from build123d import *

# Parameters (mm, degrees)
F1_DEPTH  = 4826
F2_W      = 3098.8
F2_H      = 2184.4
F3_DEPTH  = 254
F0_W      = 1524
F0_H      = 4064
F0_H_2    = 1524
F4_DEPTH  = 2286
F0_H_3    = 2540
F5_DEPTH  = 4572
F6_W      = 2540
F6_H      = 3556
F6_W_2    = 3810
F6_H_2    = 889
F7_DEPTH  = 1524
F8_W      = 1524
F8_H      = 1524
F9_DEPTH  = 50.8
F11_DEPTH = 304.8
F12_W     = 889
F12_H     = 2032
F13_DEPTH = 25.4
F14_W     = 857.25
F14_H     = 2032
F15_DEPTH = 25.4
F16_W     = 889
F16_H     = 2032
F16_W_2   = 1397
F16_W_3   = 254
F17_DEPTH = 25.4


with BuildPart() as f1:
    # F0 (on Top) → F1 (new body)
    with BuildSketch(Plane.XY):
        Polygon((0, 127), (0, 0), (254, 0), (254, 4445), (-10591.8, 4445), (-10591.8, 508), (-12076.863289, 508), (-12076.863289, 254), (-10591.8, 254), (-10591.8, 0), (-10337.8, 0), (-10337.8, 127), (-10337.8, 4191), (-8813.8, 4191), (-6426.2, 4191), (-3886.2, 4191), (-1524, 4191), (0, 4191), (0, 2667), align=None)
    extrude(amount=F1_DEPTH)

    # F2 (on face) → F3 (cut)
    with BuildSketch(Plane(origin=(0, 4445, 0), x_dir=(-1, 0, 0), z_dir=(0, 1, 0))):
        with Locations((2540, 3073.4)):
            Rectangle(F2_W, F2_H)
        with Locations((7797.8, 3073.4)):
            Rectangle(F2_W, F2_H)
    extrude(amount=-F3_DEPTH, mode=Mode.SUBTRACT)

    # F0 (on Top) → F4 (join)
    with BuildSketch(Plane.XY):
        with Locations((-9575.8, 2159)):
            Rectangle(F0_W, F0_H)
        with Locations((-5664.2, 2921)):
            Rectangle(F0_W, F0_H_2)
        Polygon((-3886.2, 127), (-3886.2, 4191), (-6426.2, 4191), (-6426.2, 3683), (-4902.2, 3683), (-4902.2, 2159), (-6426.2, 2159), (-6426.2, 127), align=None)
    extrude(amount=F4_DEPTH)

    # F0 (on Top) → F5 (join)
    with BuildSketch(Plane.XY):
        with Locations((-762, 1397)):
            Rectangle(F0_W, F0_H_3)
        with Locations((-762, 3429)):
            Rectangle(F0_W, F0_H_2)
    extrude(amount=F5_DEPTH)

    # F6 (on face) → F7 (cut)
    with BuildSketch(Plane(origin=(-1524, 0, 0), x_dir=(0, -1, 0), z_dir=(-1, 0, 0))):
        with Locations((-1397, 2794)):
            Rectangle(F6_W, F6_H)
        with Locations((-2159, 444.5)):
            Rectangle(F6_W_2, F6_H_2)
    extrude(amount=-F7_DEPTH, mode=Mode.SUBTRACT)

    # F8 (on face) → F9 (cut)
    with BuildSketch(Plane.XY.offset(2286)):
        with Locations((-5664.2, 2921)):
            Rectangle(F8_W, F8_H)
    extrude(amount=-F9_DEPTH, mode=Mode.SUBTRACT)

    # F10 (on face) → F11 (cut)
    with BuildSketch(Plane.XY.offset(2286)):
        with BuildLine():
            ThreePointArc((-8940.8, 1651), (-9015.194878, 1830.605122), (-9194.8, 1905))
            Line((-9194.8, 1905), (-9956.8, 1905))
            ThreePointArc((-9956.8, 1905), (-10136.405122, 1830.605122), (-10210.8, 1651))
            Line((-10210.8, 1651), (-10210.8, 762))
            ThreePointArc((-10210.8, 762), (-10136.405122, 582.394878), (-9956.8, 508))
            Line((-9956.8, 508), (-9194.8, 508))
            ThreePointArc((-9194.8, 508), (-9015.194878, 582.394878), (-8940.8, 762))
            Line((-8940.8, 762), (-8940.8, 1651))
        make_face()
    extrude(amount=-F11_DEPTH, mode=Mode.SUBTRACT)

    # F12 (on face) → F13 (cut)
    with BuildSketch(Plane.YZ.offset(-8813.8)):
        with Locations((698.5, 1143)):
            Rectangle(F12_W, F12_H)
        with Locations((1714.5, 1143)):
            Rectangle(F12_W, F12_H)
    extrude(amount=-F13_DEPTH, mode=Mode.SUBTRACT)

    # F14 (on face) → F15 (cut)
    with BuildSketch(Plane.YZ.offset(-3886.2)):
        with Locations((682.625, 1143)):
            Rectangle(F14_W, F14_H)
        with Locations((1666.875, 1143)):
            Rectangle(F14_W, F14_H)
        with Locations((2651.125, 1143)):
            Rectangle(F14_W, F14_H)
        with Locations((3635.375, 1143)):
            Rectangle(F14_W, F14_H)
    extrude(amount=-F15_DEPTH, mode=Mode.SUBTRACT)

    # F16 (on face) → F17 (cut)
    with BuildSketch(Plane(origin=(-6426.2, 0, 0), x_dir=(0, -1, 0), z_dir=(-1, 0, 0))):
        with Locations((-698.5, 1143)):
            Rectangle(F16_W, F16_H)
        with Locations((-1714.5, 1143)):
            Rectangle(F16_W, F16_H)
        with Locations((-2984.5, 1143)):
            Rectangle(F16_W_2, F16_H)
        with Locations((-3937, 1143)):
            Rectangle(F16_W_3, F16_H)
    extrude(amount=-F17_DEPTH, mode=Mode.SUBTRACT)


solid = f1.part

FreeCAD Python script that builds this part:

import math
import FreeCAD as App
import Part
import Sketcher

V = App.Vector
Q = App.Units.Quantity


def add_polygon(sketch, points):
    """Adds a closed chain of lines whose ends are joined by coincident constraints."""
    first, n = sketch.GeometryCount, len(points)
    for a, b in zip(points, points[1:] + points[:1]):
        sketch.addGeometry(Part.LineSegment(App.Vector(*a, 0), App.Vector(*b, 0)), False)
    for i in range(n):
        sketch.addConstraint(Sketcher.Constraint("Coincident", first + i, 2, first + (i + 1) % n, 1))

doc = App.newDocument("Part")
body = doc.addObject("PartDesign::Body", "Body")

sketch1 = body.newObject("Sketcher::SketchObject", "Sketch")
sketch1.AttachmentSupport = (doc.getObject("XY_Plane"), [""])
sketch1.MapMode = "FlatFace"
add_polygon(sketch1, [(0, 0), (254, 0), (254, 4445), (-10592, 4445), (-10592, 508), (-12077, 508), (-12077, 254), (-10592, 254), (-10592, 0), (-10338, 0), (-10338, 4191), (0, 4191)])
sketch1.addConstraint([
    Sketcher.Constraint("Horizontal", 0),
    Sketcher.Constraint("Vertical", 1),
    Sketcher.Constraint("Horizontal", 2),
    Sketcher.Constraint("Vertical", 3),
    Sketcher.Constraint("Horizontal", 4),
    Sketcher.Constraint("Vertical", 5),
    Sketcher.Constraint("Horizontal", 6),
    Sketcher.Constraint("Vertical", 7),
    Sketcher.Constraint("Horizontal", 8),
    Sketcher.Constraint("Vertical", 9),
    Sketcher.Constraint("Horizontal", 10),
    Sketcher.Constraint("Vertical", 11),
    Sketcher.Constraint("Coincident", 11, 2, -1, 1),
    Sketcher.Constraint("PointOnObject", 7, 2, -1),
    Sketcher.Constraint("Vertical", 3, 2, 6, 2),
    Sketcher.Constraint("Equal", 0, 8),
    Sketcher.Constraint("Equal", 8, 5),
    Sketcher.Constraint("Equal", 5, 7),
    Sketcher.Constraint("DistanceX", 0, 1, 0, 2, Q("10 in")),
    Sketcher.Constraint("DistanceX", 2, 2, 2, 1, Q("427 in")),
    Sketcher.Constraint("DistanceY", 1, 1, 1, 2, Q("175 in")),
    Sketcher.Constraint("DistanceY", 9, 1, 9, 2, Q("165 in")),
    Sketcher.Constraint("DistanceX", 4, 2, 4, 1, 1485.063289),
])
pad1 = body.newObject("PartDesign::Pad", "Pad")
pad1.Profile = sketch1
pad1.Length = Q("190 in")

sketch2 = body.newObject("Sketcher::SketchObject", "Sketch001")
sketch2.AttachmentSupport = (doc.getObject("XZ_Plane"), [""])
sketch2.MapMode = "FlatFace"
sketch2.AttachmentOffset = App.Placement(V(0, 0, -175 * 25.4), App.Rotation())
add_polygon(sketch2, [(-991, 4166), (-991, 1981), (-4089, 1981), (-4089, 4166)])
add_polygon(sketch2, [(-6248, 4166), (-6248, 1981), (-9347, 1981), (-9347, 4166)])
sketch2.addConstraint([
    Sketcher.Constraint("Vertical", 0),
    Sketcher.Constraint("Horizontal", 1),
    Sketcher.Constraint("Vertical", 2),
    Sketcher.Constraint("Horizontal", 3),
    Sketcher.Constraint("Vertical", 4),
    Sketcher.Constraint("Horizontal", 5),
    Sketcher.Constraint("Vertical", 6),
    Sketcher.Constraint("Horizontal", 7),
    Sketcher.Constraint("Horizontal", 1, 2, 4, 2),
    Sketcher.Constraint("Horizontal", 3, 2, 6, 2),
    Sketcher.Constraint("Equal", 3, 5),
    Sketcher.Constraint("DistanceX", 1, 2, 1, 1, Q("122 in")),
    Sketcher.Constraint("DistanceY", 0, 2, 0, 1, Q("86 in")),
    Sketcher.Constraint("DistanceX", 0, 2, -1, 1, Q("39 in")),
    Sketcher.Constraint("DistanceY", -1, 1, 0, 2, Q("78 in")),
    Sketcher.Constraint("DistanceX", 4, 2, -1, 1, Q("246 in")),
])
pocket1 = body.newObject("PartDesign::Pocket", "Pocket")
pocket1.Profile = sketch2
pocket1.Length = Q("10 in")
pocket1.Reversed = True

sketch3 = body.newObject("Sketcher::SketchObject", "Sketch002")
sketch3.AttachmentSupport = (doc.getObject("XY_Plane"), [""])
sketch3.MapMode = "FlatFace"
add_polygon(sketch3, [(-10338, 4191), (-10338, 127), (-8814, 127), (-8814, 4191)])
add_polygon(sketch3, [(-6426, 127), (-3886, 127), (-3886, 4191), (-6426, 4191)])
sketch3.addConstraint([
    Sketcher.Constraint("Vertical", 0),
    Sketcher.Constraint("Horizontal", 1),
    Sketcher.Constraint("Vertical", 2),
    Sketcher.Constraint("Horizontal", 3),
    Sketcher.Constraint("Horizontal", 4),
    Sketcher.Constraint("Vertical", 5),
    Sketcher.Constraint("Horizontal", 6),
    Sketcher.Constraint("Vertical", 7),
    Sketcher.Constraint("Horizontal", 1, 2, 4, 2),
    Sketcher.Constraint("Horizontal", 3, 2, 5, 2),
    Sketcher.Constraint("DistanceX", 1, 1, 1, 2, Q("60 in")),
    Sketcher.Constraint("DistanceX", 4, 1, 4, 2, Q("100 in")),
    Sketcher.Constraint("DistanceY", 0, 2, 0, 1, Q("160 in")),
    Sketcher.Constraint("DistanceX", 0, 2, -1, 1, Q("407 in")),
    Sketcher.Constraint("DistanceY", -1, 1, 0, 2, Q("5 in")),
    Sketcher.Constraint("DistanceX", 4, 2, -1, 1, Q("153 in")),
])
pad2 = body.newObject("PartDesign::Pad", "Pad001")
pad2.Profile = sketch3
pad2.Length = Q("90 in")

sketch4 = body.newObject("Sketcher::SketchObject", "Sketch003")
sketch4.AttachmentSupport = (doc.getObject("XY_Plane"), [""])
sketch4.MapMode = "FlatFace"
add_polygon(sketch4, [(-1524, 127), (0, 127), (0, 4191), (-1524, 4191)])
sketch4.addConstraint([
    Sketcher.Constraint("Horizontal", 0),
    Sketcher.Constraint("Vertical", 1),
    Sketcher.Constraint("Horizontal", 2),
    Sketcher.Constraint("Vertical", 3),
    Sketcher.Constraint("PointOnObject", 0, 2, -2),
    Sketcher.Constraint("DistanceX", 0, 1, 0, 2, Q("60 in")),
    Sketcher.Constraint("DistanceY", 1, 1, 1, 2, Q("160 in")),
    Sketcher.Constraint("DistanceY", -1, 1, 0, 2, Q("5 in")),
])
pad3 = body.newObject("PartDesign::Pad", "Pad002")
pad3.Profile = sketch4
pad3.Length = Q("180 in")

sketch5 = body.newObject("Sketcher::SketchObject", "Sketch004")
sketch5.AttachmentSupport = (doc.getObject("YZ_Plane"), [""])
sketch5.MapMode = "FlatFace"
sketch5.AttachmentOffset = App.Placement(V(0, 0, -60 * 25.4), App.Rotation())
add_polygon(sketch5, [(2667, 4572), (2667, 1016), (127, 1016), (127, 4572)])
add_polygon(sketch5, [(4064, 889), (4064, 0), (254, 0), (254, 889)])
sketch5.addConstraint([
    Sketcher.Constraint("Vertical", 0),
    Sketcher.Constraint("Horizontal", 1),
    Sketcher.Constraint("Vertical", 2),
    Sketcher.Constraint("Horizontal", 3),
    Sketcher.Constraint("Vertical", 4),
    Sketcher.Constraint("Horizontal", 5),
    Sketcher.Constraint("Vertical", 6),
    Sketcher.Constraint("Horizontal", 7),
    Sketcher.Constraint("PointOnObject", 4, 2, -1),
    Sketcher.Constraint("DistanceX", 1, 2, 1, 1, Q("100 in")),
    Sketcher.Constraint("DistanceX", 5, 2, 5, 1, Q("150 in")),
    Sketcher.Constraint("DistanceY", 0, 2, 0, 1, Q("140 in")),
    Sketcher.Constraint("DistanceY", 4, 2, 4, 1, Q("35 in")),
    Sketcher.Constraint("DistanceX", -1, 1, 0, 2, Q("105 in")),
    Sketcher.Constraint("DistanceY", -1, 1, 0, 2, Q("40 in")),
    Sketcher.Constraint("DistanceX", -1, 1, 4, 2, Q("160 in")),
])
pocket2 = body.newObject("PartDesign::Pocket", "Pocket001")
pocket2.Profile = sketch5
pocket2.Length = Q("60 in")
pocket2.Reversed = True

sketch6 = body.newObject("Sketcher::SketchObject", "Sketch005")
sketch6.AttachmentSupport = (doc.getObject("XY_Plane"), [""])
sketch6.MapMode = "FlatFace"
sketch6.AttachmentOffset = App.Placement(V(0, 0, 90 * 25.4), App.Rotation())
add_polygon(sketch6, [(-6426, 3683), (-6426, 2159), (-4902, 2159), (-4902, 3683)])
sketch6.addConstraint([
    Sketcher.Constraint("Vertical", 0),
    Sketcher.Constraint("Horizontal", 1),
    Sketcher.Constraint("Vertical", 2),
    Sketcher.Constraint("Horizontal", 3),
    Sketcher.Constraint("Equal", 3, 0),
    Sketcher.Constraint("DistanceX", 1, 1, 1, 2, Q("60 in")),
    Sketcher.Constraint("DistanceX", 0, 2, -1, 1, Q("253 in")),
    Sketcher.Constraint("DistanceY", -1, 1, 0, 2, Q("85 in")),
])
pocket3 = body.newObject("PartDesign::Pocket", "Pocket002")
pocket3.Profile = sketch6
pocket3.Length = Q("2 in")

sketch7 = body.newObject("Sketcher::SketchObject", "Sketch006")
sketch7.AttachmentSupport = (doc.getObject("XY_Plane"), [""])
sketch7.MapMode = "FlatFace"
sketch7.AttachmentOffset = App.Placement(V(0, 0, 90 * 25.4), App.Rotation())
sketch7.addGeometry([
    Part.ArcOfCircle(Part.Circle(V(-9195, 1651, 0), V(0, 0, 1), 254), math.radians(0), math.radians(90)),
    Part.LineSegment(V(-9195, 1905, 0), V(-9957, 1905, 0)),
    Part.ArcOfCircle(Part.Circle(V(-9957, 1651, 0), V(0, 0, 1), 254), math.radians(90), math.radians(180)),
    Part.LineSegment(V(-10211, 1651, 0), V(-10211, 762, 0)),
    Part.ArcOfCircle(Part.Circle(V(-9957, 762, 0), V(0, 0, 1), 254), math.radians(-180), math.radians(-90)),
    Part.LineSegment(V(-9957, 508, 0), V(-9195, 508, 0)),
    Part.ArcOfCircle(Part.Circle(V(-9195, 762, 0), V(0, 0, 1), 254), math.radians(-90), math.radians(0)),
    Part.LineSegment(V(-8941, 762, 0), V(-8941, 1651, 0)),
], False)
sketch7.addConstraint([
    Sketcher.Constraint("Tangent", 0, 2, 1, 1),
    Sketcher.Constraint("Tangent", 1, 2, 2, 1),
    Sketcher.Constraint("Tangent", 2, 2, 3, 1),
    Sketcher.Constraint("Tangent", 3, 2, 4, 1),
    Sketcher.Constraint("Tangent", 4, 2, 5, 1),
    Sketcher.Constraint("Tangent", 5, 2, 6, 1),
    Sketcher.Constraint("Tangent", 6, 2, 7, 1),
    Sketcher.Constraint("Tangent", 7, 2, 0, 1),
    Sketcher.Constraint("Horizontal", 1),
    Sketcher.Constraint("Vertical", 3),
    Sketcher.Constraint("Horizontal", 5),
    Sketcher.Constraint("Vertical", 7),
    Sketcher.Constraint("Equal", 0, 2),
    Sketcher.Constraint("Equal", 2, 4),
    Sketcher.Constraint("Equal", 4, 6),
    Sketcher.Constraint("Radius", 0, Q("10.0000001 in")),
    Sketcher.Constraint("DistanceX", 1, 2, 1, 1, Q("30 in")),
    Sketcher.Constraint("DistanceY", 3, 2, 3, 1, Q("35 in")),
    Sketcher.Constraint("DistanceX", 0, 3, -1, 1, Q("362.0000001 in")),
    Sketcher.Constraint("DistanceY", -1, 1, 0, 3, Q("64.9999999 in")),
])
pocket4 = body.newObject("PartDesign::Pocket", "Pocket003")
pocket4.Profile = sketch7
pocket4.Length = Q("12 in")

sketch8 = body.newObject("Sketcher::SketchObject", "Sketch007")
sketch8.AttachmentSupport = (doc.getObject("YZ_Plane"), [""])
sketch8.MapMode = "FlatFace"
sketch8.AttachmentOffset = App.Placement(V(0, 0, -347 * 25.4), App.Rotation())
add_polygon(sketch8, [(254, 2159), (254, 127), (1143, 127), (1143, 2159)])
add_polygon(sketch8, [(1270, 2159), (1270, 127), (2159, 127), (2159, 2159)])
sketch8.addConstraint([
    Sketcher.Constraint("Vertical", 0),
    Sketcher.Constraint("Horizontal", 1),
    Sketcher.Constraint("Vertical", 2),
    Sketcher.Constraint("Horizontal", 3),
    Sketcher.Constraint("Vertical", 4),
    Sketcher.Constraint("Horizontal", 5),
    Sketcher.Constraint("Vertical", 6),
    Sketcher.Constraint("Horizontal", 7),
    Sketcher.Constraint("Horizontal", 1, 2, 4, 2),
    Sketcher.Constraint("Horizontal", 3, 2, 6, 2),
    Sketcher.Constraint("Equal", 3, 5),
    Sketcher.Constraint("DistanceX", 1, 1, 1, 2, Q("35 in")),
    Sketcher.Constraint("DistanceY", 0, 2, 0, 1, Q("80 in")),
    Sketcher.Constraint("DistanceX", -1, 1, 0, 2, Q("10 in")),
    Sketcher.Constraint("DistanceY", -1, 1, 0, 2, Q("5 in")),
    Sketcher.Constraint("DistanceX", -1, 1, 4, 2, Q("50 in")),
])
pocket5 = body.newObject("PartDesign::Pocket", "Pocket004")
pocket5.Profile = sketch8
pocket5.Length = Q("1 in")

sketch9 = body.newObject("Sketcher::SketchObject", "Sketch008")
sketch9.AttachmentSupport = (doc.getObject("YZ_Plane"), [""])
sketch9.MapMode = "FlatFace"
sketch9.AttachmentOffset = App.Placement(V(0, 0, -153 * 25.4), App.Rotation())
add_polygon(sketch9, [(254, 2159), (254, 127), (1111, 127), (1111, 2159)])
add_polygon(sketch9, [(1238, 2159), (1238, 127), (2096, 127), (2096, 2159)])
add_polygon(sketch9, [(2222, 2159), (2222, 127), (3080, 127), (3080, 2159)])
add_polygon(sketch9, [(3207, 2159), (3207, 127), (4064, 127), (4064, 2159)])
sketch9.addConstraint([
    Sketcher.Constraint("Vertical", 0),
    Sketcher.Constraint("Horizontal", 1),
    Sketcher.Constraint("Vertical", 2),
    Sketcher.Constraint("Horizontal", 3),
    Sketcher.Constraint("Vertical", 4),
    Sketcher.Constraint("Horizontal", 5),
    Sketcher.Constraint("Vertical", 6),
    Sketcher.Constraint("Horizontal", 7),
    Sketcher.Constraint("Vertical", 8),
    Sketcher.Constraint("Horizontal", 9),
    Sketcher.Constraint("Vertical", 10),
    Sketcher.Constraint("Horizontal", 11),
    Sketcher.Constraint("Vertical", 12),
    Sketcher.Constraint("Horizontal", 13),
    Sketcher.Constraint("Vertical", 14),
    Sketcher.Constraint("Horizontal", 15),
    Sketcher.Constraint("Horizontal", 1, 2, 4, 2),
    Sketcher.Constraint("Horizontal", 3, 2, 6, 2),
    Sketcher.Constraint("Horizontal", 5, 2, 8, 2),
    Sketcher.Constraint("Horizontal", 7, 2, 10, 2),
    Sketcher.Constraint("Horizontal", 9, 2, 12, 2),
    Sketcher.Constraint("Horizontal", 11, 2, 14, 2),
    Sketcher.Constraint("Equal", 3, 5),
    Sketcher.Constraint("Equal", 7, 9),
    Sketcher.Constraint("Equal", 11, 13),
    Sketcher.Constraint("DistanceY", 0, 2, 0, 1, Q("80 in")),
    Sketcher.Constraint("DistanceX", -1, 1, 0, 2, Q("10 in")),
    Sketcher.Constraint("DistanceY", -1, 1, 0, 2, Q("5 in")),
    Sketcher.Constraint("DistanceX", -1, 1, 13, 2, Q("160 in")),
    Sketcher.Constraint("DistanceX", 1, 2, 4, 2, Q("5 in")),
    Sketcher.Constraint("DistanceX", 5, 2, 8, 2, Q("5 in")),
    Sketcher.Constraint("DistanceX", 9, 2, 12, 2, Q("5 in")),
])
pocket6 = body.newObject("PartDesign::Pocket", "Pocket005")
pocket6.Profile = sketch9
pocket6.Length = Q("1 in")

sketch10 = body.newObject("Sketcher::SketchObject", "Sketch009")
sketch10.AttachmentSupport = (doc.getObject("YZ_Plane"), [""])
sketch10.MapMode = "FlatFace"
sketch10.AttachmentOffset = App.Placement(V(0, 0, -253 * 25.4), App.Rotation())
add_polygon(sketch10, [(1143, 2159), (1143, 127), (254, 127), (254, 2159)])
add_polygon(sketch10, [(2159, 2159), (2159, 127), (1270, 127), (1270, 2159)])
add_polygon(sketch10, [(3683, 2159), (3683, 127), (2286, 127), (2286, 2159)])
add_polygon(sketch10, [(4064, 2159), (4064, 127), (3810, 127), (3810, 2159)])
sketch10.addConstraint([
    Sketcher.Constraint("Vertical", 0),
    Sketcher.Constraint("Horizontal", 1),
    Sketcher.Constraint("Vertical", 2),
    Sketcher.Constraint("Horizontal", 3),
    Sketcher.Constraint("Vertical", 4),
    Sketcher.Constraint("Horizontal", 5),
    Sketcher.Constraint("Vertical", 6),
    Sketcher.Constraint("Horizontal", 7),
    Sketcher.Constraint("Vertical", 8),
    Sketcher.Constraint("Horizontal", 9),
    Sketcher.Constraint("Vertical", 10),
    Sketcher.Constraint("Horizontal", 11),
    Sketcher.Constraint("Vertical", 12),
    Sketcher.Constraint("Horizontal", 13),
    Sketcher.Constraint("Vertical", 14),
    Sketcher.Constraint("Horizontal", 15),
    Sketcher.Constraint("Horizontal", 1, 2, 4, 2),
    Sketcher.Constraint("Horizontal", 3, 2, 6, 2),
    Sketcher.Constraint("Horizontal", 5, 2, 8, 2),
    Sketcher.Constraint("Horizontal", 7, 2, 10, 2),
    Sketcher.Constraint("Horizontal", 9, 2, 12, 2),
    Sketcher.Constraint("Horizontal", 11, 2, 14, 2),
    Sketcher.Constraint("Equal", 3, 5),
    Sketcher.Constraint("DistanceX", 1, 2, 1, 1, Q("35 in")),
    Sketcher.Constraint("DistanceX", 9, 2, 9, 1, Q("55 in")),
    Sketcher.Constraint("DistanceX", 13, 2, 13, 1, Q("10 in")),
    Sketcher.Constraint("DistanceY", 0, 2, 0, 1, Q("80 in")),
    Sketcher.Constraint("DistanceX", -1, 1, 0, 2, Q("45 in")),
    Sketcher.Constraint("DistanceY", -1, 1, 0, 2, Q("5 in")),
    Sketcher.Constraint("DistanceX", -1, 1, 4, 2, Q("85 in")),
    Sketcher.Constraint("DistanceX", -1, 1, 8, 2, Q("145 in")),
    Sketcher.Constraint("DistanceX", -1, 1, 12, 2, Q("160 in")),
])
pocket7 = body.newObject("PartDesign::Pocket", "Pocket006")
pocket7.Profile = sketch10
pocket7.Length = Q("1 in")
pocket7.Reversed = True

doc.recompute()
